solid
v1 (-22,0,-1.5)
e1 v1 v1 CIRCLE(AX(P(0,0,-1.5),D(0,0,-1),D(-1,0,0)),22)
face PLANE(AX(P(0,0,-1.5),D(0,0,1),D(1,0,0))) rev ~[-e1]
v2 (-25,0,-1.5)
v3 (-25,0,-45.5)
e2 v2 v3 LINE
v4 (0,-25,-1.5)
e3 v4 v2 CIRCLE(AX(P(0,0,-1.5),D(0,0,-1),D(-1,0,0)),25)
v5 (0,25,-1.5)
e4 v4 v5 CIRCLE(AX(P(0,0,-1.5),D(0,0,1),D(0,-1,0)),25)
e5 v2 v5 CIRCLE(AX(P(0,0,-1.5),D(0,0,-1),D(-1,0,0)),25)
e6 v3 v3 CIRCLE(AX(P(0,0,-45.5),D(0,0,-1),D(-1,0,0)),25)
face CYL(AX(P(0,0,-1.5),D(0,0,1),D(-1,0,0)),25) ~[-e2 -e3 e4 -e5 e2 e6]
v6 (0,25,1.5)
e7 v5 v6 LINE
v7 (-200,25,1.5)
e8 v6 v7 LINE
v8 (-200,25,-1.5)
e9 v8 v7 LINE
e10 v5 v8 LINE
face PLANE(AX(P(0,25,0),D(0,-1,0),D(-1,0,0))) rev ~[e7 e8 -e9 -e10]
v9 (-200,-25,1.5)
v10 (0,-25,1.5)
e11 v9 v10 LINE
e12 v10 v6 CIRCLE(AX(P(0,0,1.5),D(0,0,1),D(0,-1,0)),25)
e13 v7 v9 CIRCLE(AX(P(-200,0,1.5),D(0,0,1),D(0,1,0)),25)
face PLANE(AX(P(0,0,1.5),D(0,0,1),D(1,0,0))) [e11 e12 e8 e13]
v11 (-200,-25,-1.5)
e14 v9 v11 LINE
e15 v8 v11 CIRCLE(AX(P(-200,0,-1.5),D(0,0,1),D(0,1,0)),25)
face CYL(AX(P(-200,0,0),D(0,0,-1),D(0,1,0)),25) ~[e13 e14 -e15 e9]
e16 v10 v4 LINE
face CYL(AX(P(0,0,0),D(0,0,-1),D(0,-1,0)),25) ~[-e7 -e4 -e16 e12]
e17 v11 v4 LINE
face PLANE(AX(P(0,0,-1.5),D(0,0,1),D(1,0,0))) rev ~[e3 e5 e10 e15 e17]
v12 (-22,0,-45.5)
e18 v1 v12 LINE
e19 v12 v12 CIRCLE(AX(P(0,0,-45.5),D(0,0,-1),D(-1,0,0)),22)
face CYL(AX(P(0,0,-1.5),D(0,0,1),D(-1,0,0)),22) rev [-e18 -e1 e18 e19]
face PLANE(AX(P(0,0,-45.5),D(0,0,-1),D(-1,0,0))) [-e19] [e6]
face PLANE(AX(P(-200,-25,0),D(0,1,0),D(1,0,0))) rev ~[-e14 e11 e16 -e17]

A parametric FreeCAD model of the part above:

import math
import FreeCAD as App
import Part
import Sketcher

V = App.Vector

doc = App.newDocument("Part")
body = doc.addObject("PartDesign::Body", "Body")

sketch1 = body.newObject("Sketcher::SketchObject", "Sketch")
sketch1.AttachmentSupport = (doc.getObject("XY_Plane"), [""])
sketch1.MapMode = "FlatFace"
sketch1.addGeometry(Part.ArcOfCircle(Part.Circle(V(0, 0, 0), V(0, 0, 1), 25), math.radians(-90), math.radians(90)), False)
sketch1.addGeometry(Part.LineSegment(V(0, 25, 0), V(-200, 25, 0)), False)
sketch1.addGeometry(Part.ArcOfCircle(Part.Circle(V(-200, 0, 0), V(0, 0, 1), 25), math.radians(90), math.radians(270)), False)
sketch1.addGeometry(Part.LineSegment(V(-200, -25, 0), V(0, -25, 0)), False)
sketch1.addConstraint(Sketcher.Constraint("Tangent", 0, 2, 1, 1))
sketch1.addConstraint(Sketcher.Constraint("Tangent", 1, 2, 2, 1))
sketch1.addConstraint(Sketcher.Constraint("Tangent", 2, 2, 3, 1))
sketch1.addConstraint(Sketcher.Constraint("Tangent", 3, 2, 0, 1))
sketch1.addConstraint(Sketcher.Constraint("Horizontal", 1))
sketch1.addConstraint(Sketcher.Constraint("Horizontal", 3))
sketch1.addConstraint(Sketcher.Constraint("Coincident", 0, 3, -1, 1))
sketch1.addConstraint(Sketcher.Constraint("Radius", 0, 25.0))
sketch1.addConstraint(Sketcher.Constraint("DistanceX", 1, 2, 1, 1, 200.0))
pad1 = body.newObject("PartDesign::Pad", "Pad")
pad1.Profile = sketch1
pad1.Length = 3
pad1.Midplane = True

sketch2 = body.newObject("Sketcher::SketchObject", "Sketch001")
sketch2.AttachmentSupport = (doc.getObject("XY_Plane"), [""])
sketch2.MapMode = "FlatFace"
sketch2.AttachmentOffset = App.Placement(V(0, 0, -1.5), App.Rotation())
sketch2.addGeometry(Part.Circle(V(0, 0, 0), V(0, 0, 1), 25), False)
sketch2.addGeometry(Part.Circle(V(0, 0, 0), V(0, 0, 1), 22), False)
sketch2.addConstraint(Sketcher.Constraint("Coincident", 0, 3, -1, 1))
sketch2.addConstraint(Sketcher.Constraint("Coincident", 1, 3, -1, 1))
sketch2.addConstraint(Sketcher.Constraint("Diameter", 0, 50.0))
sketch2.addConstraint(Sketcher.Constraint("Diameter", 1, 44.0))
pad2 = body.newObject("PartDesign::Pad", "Pad001")
pad2.Profile = sketch2
pad2.Length = 44
pad2.Reversed = True

doc.recompute()
